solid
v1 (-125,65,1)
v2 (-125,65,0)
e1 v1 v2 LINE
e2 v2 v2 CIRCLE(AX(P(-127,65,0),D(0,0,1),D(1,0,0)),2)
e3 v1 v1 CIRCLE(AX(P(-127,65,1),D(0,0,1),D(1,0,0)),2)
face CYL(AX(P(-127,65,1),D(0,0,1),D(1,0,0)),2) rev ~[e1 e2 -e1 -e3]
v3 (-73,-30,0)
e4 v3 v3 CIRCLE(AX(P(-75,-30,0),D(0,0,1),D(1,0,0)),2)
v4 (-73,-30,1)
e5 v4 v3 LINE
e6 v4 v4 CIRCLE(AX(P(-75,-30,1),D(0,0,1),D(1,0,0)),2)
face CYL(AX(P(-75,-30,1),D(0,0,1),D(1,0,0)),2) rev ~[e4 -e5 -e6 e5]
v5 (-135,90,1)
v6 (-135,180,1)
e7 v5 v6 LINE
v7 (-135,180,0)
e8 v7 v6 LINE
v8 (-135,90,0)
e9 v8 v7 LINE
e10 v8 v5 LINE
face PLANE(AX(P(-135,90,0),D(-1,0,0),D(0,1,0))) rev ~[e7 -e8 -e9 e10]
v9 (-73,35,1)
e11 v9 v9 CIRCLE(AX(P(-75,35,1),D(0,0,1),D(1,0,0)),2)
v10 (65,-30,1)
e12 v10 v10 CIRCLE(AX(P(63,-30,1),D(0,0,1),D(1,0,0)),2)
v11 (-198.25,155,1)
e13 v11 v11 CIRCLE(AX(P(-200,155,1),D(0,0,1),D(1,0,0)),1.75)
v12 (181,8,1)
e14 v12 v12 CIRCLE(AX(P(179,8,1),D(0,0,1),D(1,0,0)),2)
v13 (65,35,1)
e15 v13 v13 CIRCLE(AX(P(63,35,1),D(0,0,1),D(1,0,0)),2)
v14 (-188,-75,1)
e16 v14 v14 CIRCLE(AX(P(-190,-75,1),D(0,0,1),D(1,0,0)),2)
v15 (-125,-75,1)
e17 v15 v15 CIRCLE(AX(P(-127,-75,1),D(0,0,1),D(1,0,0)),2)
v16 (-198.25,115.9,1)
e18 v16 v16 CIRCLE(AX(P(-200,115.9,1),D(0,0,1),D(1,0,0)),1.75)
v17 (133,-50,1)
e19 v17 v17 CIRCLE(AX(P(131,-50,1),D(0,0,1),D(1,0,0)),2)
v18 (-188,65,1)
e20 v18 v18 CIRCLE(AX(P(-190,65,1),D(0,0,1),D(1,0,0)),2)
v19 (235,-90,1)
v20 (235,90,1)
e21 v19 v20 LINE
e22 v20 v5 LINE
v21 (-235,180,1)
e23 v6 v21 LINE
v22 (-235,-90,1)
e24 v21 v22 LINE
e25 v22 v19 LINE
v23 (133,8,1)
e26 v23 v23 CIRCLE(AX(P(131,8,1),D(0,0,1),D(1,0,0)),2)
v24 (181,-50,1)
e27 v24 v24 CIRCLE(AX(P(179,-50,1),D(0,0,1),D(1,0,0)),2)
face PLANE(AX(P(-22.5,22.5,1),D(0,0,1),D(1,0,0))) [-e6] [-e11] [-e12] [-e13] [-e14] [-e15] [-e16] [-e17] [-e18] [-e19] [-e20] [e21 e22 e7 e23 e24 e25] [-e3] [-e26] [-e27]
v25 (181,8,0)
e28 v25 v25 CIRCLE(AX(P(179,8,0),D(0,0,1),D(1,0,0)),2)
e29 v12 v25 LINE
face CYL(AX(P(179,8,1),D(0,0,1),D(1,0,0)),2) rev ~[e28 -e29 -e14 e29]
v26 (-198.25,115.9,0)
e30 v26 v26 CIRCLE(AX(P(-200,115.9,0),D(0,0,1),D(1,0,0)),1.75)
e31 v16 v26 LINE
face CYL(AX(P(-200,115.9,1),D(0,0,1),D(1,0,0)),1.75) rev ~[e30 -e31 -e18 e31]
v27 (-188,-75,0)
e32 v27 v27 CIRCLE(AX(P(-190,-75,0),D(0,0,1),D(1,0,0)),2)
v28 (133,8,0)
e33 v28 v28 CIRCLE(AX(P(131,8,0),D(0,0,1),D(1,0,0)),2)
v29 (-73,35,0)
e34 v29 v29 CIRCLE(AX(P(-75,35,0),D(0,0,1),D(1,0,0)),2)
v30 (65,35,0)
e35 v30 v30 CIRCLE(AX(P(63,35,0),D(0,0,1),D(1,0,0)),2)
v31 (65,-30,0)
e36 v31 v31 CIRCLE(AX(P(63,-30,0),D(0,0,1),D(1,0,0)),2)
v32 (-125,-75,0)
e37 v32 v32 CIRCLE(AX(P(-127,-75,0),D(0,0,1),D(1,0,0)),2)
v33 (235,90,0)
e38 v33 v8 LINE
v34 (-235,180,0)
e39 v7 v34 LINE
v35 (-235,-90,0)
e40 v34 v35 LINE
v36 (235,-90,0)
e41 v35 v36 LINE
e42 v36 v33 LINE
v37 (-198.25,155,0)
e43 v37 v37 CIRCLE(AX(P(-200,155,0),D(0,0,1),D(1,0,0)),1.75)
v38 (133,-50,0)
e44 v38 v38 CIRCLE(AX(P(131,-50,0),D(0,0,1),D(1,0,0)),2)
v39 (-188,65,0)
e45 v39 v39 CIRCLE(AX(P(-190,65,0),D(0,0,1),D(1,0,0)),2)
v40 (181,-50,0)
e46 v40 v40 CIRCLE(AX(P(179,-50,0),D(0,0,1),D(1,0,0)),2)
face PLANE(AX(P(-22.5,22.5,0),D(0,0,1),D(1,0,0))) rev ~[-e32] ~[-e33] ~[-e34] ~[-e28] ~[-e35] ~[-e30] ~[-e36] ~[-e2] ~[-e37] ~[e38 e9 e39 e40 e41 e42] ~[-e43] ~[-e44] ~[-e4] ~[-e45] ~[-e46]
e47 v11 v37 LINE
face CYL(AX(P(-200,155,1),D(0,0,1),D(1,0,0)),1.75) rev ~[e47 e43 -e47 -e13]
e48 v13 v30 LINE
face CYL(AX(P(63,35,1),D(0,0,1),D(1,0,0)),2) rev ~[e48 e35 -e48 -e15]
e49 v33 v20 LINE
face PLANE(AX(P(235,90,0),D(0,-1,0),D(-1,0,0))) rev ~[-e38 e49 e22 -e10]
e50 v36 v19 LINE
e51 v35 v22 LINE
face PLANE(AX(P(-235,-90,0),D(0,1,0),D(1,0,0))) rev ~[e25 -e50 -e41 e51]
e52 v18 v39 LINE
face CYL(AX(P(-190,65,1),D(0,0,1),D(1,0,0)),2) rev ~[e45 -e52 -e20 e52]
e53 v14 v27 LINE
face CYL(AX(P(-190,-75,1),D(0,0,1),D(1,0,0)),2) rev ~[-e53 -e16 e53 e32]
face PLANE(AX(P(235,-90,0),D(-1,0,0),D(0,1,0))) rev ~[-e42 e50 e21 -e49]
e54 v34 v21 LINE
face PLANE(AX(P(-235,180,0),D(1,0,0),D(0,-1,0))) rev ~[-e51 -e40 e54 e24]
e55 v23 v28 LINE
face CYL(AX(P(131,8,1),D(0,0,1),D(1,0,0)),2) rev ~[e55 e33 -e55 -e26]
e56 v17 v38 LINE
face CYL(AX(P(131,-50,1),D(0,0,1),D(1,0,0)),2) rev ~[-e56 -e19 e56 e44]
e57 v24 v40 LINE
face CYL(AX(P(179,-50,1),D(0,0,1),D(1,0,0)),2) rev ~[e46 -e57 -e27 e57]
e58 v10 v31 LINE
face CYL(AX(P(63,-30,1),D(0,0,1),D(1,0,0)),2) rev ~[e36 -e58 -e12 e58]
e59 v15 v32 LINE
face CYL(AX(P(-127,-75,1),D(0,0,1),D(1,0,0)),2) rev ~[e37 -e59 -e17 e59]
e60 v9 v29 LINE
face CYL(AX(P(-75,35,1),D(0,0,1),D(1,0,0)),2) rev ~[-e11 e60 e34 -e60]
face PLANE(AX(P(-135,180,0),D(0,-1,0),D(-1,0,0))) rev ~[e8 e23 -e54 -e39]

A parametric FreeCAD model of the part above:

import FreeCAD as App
import Part
import Sketcher

V = App.Vector
Q = App.Units.Quantity

doc = App.newDocument("Part")
params = doc.addObject("Spreadsheet::Sheet", "Params")
for row, (alias, value) in enumerate([
    ("sketch1_width", "470 mm"),
    ("sketch1_width2", "370 mm"),
    ("sketch1_height", "180 mm"),
    ("sketch1_height2", "90 mm"),
    ("pad1_length", "1 mm"),
    ("sketch2_diameter", "4 mm"),
    ("sketch3_diameter", "4 mm"),
    ("pocket2_length", "25 mm"),
    ("sketch4_diameter", "4 mm"),
    ("pocket3_length", "25 mm"),
    ("sketch5_diameter", "3.5 mm"),
    ("pocket4_length", "25 mm"),
], start=1):
    params.set(f"A{row}", alias)
    params.set(f"B{row}", "=" + value)
    params.setAlias(f"B{row}", alias)

body = doc.addObject("PartDesign::Body", "Body")

sketch1 = body.newObject("Sketcher::SketchObject", "Sketch")
sketch1.AttachmentSupport = (doc.getObject("XY_Plane"), [""])
sketch1.MapMode = "FlatFace"
sketch1.addGeometry([
    Part.LineSegment(V(-235, -90, 0), V(235, -90, 0)),
    Part.LineSegment(V(235, -90, 0), V(235, 90, 0)),
    Part.LineSegment(V(235, 90, 0), V(-135, 90, 0)),
    Part.LineSegment(V(-135, 90, 0), V(-135, 180, 0)),
    Part.LineSegment(V(-135, 180, 0), V(-235, 180, 0)),
    Part.LineSegment(V(-235, 180, 0), V(-235, -90, 0)),
], False)
sketch1.addConstraint([
    Sketcher.Constraint("Coincident", 0, 2, 1, 1),
    Sketcher.Constraint("Coincident", 1, 2, 2, 1),
    Sketcher.Constraint("Coincident", 2, 2, 3, 1),
    Sketcher.Constraint("Coincident", 3, 2, 4, 1),
    Sketcher.Constraint("Coincident", 4, 2, 5, 1),
    Sketcher.Constraint("Coincident", 5, 2, 0, 1),
    Sketcher.Constraint("Horizontal", 0),
    Sketcher.Constraint("Vertical", 1),
    Sketcher.Constraint("Horizontal", 2),
    Sketcher.Constraint("Vertical", 3),
    Sketcher.Constraint("Horizontal", 4),
    Sketcher.Constraint("Vertical", 5),
    Sketcher.Constraint("Symmetric", 1, 2, 5, 2, -1, 1),
    Sketcher.Constraint("DistanceX", 0, 1, 0, 2, Q("470 mm")),
    Sketcher.Constraint("DistanceX", 2, 2, 2, 1, Q("370 mm")),
    Sketcher.Constraint("DistanceY", 1, 1, 1, 2, Q("180 mm")),
    Sketcher.Constraint("DistanceY", 3, 1, 3, 2, Q("90 mm")),
])
sketch1.setExpression("Constraints[13]", "Params.sketch1_width")
sketch1.setExpression("Constraints[14]", "Params.sketch1_width2")
sketch1.setExpression("Constraints[15]", "Params.sketch1_height")
sketch1.setExpression("Constraints[16]", "Params.sketch1_height2")
pad1 = body.newObject("PartDesign::Pad", "Pad")
pad1.Profile = sketch1
pad1.setExpression("Length", "Params.pad1_length")

sketch2 = body.newObject("Sketcher::SketchObject", "Sketch001")
sketch2.AttachmentSupport = (doc.getObject("XY_Plane"), [""])
sketch2.MapMode = "FlatFace"
sketch2.AttachmentOffset = App.Placement(V(0, 0, 1), App.Rotation())
sketch2.addGeometry([
    Part.Circle(V(-127, 65, 0), V(0, 0, 1), 2),
    Part.Circle(V(-190, 65, 0), V(0, 0, 1), 2),
    Part.Circle(V(-127, -75, 0), V(0, 0, 1), 2),
    Part.Circle(V(-190, -75, 0), V(0, 0, 1), 2),
], False)
sketch2.addConstraint([
    Sketcher.Constraint("Equal", 0, 1),
    Sketcher.Constraint("Equal", 1, 2),
    Sketcher.Constraint("Equal", 2, 3),
    Sketcher.Constraint("Horizontal", 0, 3, 1, 3),
    Sketcher.Constraint("Horizontal", 2, 3, 3, 3),
    Sketcher.Constraint("Vertical", 0, 3, 2, 3),
    Sketcher.Constraint("Vertical", 1, 3, 3, 3),
    Sketcher.Constraint("Diameter", 0, Q("4 mm")),
    Sketcher.Constraint("DistanceX", 0, 3, -1, 1, Q("127 mm")),
    Sketcher.Constraint("DistanceY", -1, 1, 0, 3, Q("65 mm")),
    Sketcher.Constraint("DistanceX", 1, 3, -1, 1, Q("190 mm")),
    Sketcher.Constraint("DistanceY", 2, 3, -1, 1, Q("75 mm")),
])
sketch2.setExpression("Constraints[7]", "Params.sketch2_diameter")
pocket1 = body.newObject("PartDesign::Pocket", "Pocket")
pocket1.Profile = sketch2
pocket1.Type = "ThroughAll"

sketch3 = body.newObject("Sketcher::SketchObject", "Sketch002")
sketch3.AttachmentSupport = (doc.getObject("XY_Plane"), [""])
sketch3.MapMode = "FlatFace"
sketch3.AttachmentOffset = App.Placement(V(0, 0, 1), App.Rotation())
sketch3.addGeometry([
    Part.Circle(V(-75, 35, 0), V(0, 0, 1), 2),
    Part.Circle(V(63, 35, 0), V(0, 0, 1), 2),
    Part.Circle(V(-75, -30, 0), V(0, 0, 1), 2),
    Part.Circle(V(63, -30, 0), V(0, 0, 1), 2),
], False)
sketch3.addConstraint([
    Sketcher.Constraint("Equal", 0, 1),
    Sketcher.Constraint("Equal", 1, 2),
    Sketcher.Constraint("Equal", 2, 3),
    Sketcher.Constraint("Horizontal", 0, 3, 1, 3),
    Sketcher.Constraint("Horizontal", 2, 3, 3, 3),
    Sketcher.Constraint("Vertical", 0, 3, 2, 3),
    Sketcher.Constraint("Vertical", 1, 3, 3, 3),
    Sketcher.Constraint("Diameter", 0, Q("4 mm")),
    Sketcher.Constraint("DistanceX", 0, 3, -1, 1, Q("75 mm")),
    Sketcher.Constraint("DistanceY", -1, 1, 0, 3, Q("35 mm")),
    Sketcher.Constraint("DistanceX", -1, 1, 1, 3, Q("63 mm")),
    Sketcher.Constraint("DistanceY", 2, 3, -1, 1, Q("30 mm")),
])
sketch3.setExpression("Constraints[7]", "Params.sketch3_diameter")
pocket2 = body.newObject("PartDesign::Pocket", "Pocket001")
pocket2.Profile = sketch3
pocket2.setExpression("Length", "Params.pocket2_length")

sketch4 = body.newObject("Sketcher::SketchObject", "Sketch003")
sketch4.AttachmentSupport = (doc.getObject("XY_Plane"), [""])
sketch4.MapMode = "FlatFace"
sketch4.AttachmentOffset = App.Placement(V(0, 0, 1), App.Rotation())
sketch4.addGeometry([
    Part.Circle(V(131, 8, 0), V(0, 0, 1), 2),
    Part.Circle(V(131, -50, 0), V(0, 0, 1), 2),
    Part.Circle(V(179, 8, 0), V(0, 0, 1), 2),
    Part.Circle(V(179, -50, 0), V(0, 0, 1), 2),
], False)
sketch4.addConstraint([
    Sketcher.Constraint("Equal", 0, 1),
    Sketcher.Constraint("Equal", 1, 2),
    Sketcher.Constraint("Equal", 2, 3),
    Sketcher.Constraint("Horizontal", 0, 3, 2, 3),
    Sketcher.Constraint("Horizontal", 1, 3, 3, 3),
    Sketcher.Constraint("Vertical", 0, 3, 1, 3),
    Sketcher.Constraint("Vertical", 2, 3, 3, 3),
    Sketcher.Constraint("Diameter", 0, Q("4 mm")),
    Sketcher.Constraint("DistanceX", -1, 1, 0, 3, Q("131 mm")),
    Sketcher.Constraint("DistanceY", -1, 1, 0, 3, Q("8 mm")),
    Sketcher.Constraint("DistanceY", 1, 3, -1, 1, Q("50 mm")),
    Sketcher.Constraint("DistanceX", -1, 1, 2, 3, Q("179 mm")),
])
sketch4.setExpression("Constraints[7]", "Params.sketch4_diameter")
pocket3 = body.newObject("PartDesign::Pocket", "Pocket002")
pocket3.Profile = sketch4
pocket3.setExpression("Length", "Params.pocket3_length")

sketch5 = body.newObject("Sketcher::SketchObject", "Sketch004")
sketch5.AttachmentSupport = (doc.getObject("XY_Plane"), [""])
sketch5.MapMode = "FlatFace"
sketch5.AttachmentOffset = App.Placement(V(0, 0, 1), App.Rotation())
sketch5.addGeometry([
    Part.Circle(V(-200, 155, 0), V(0, 0, 1), 1.8),
    Part.Circle(V(-200, 115.9, 0), V(0, 0, 1), 1.8),
], False)
sketch5.addConstraint([
    Sketcher.Constraint("Equal", 0, 1),
    Sketcher.Constraint("Vertical", 0, 3, 1, 3),
    Sketcher.Constraint("Diameter", 0, Q("3.5 mm")),
    Sketcher.Constraint("DistanceX", 0, 3, -1, 1, Q("200 mm")),
    Sketcher.Constraint("DistanceY", -1, 1, 0, 3, Q("155 mm")),
    Sketcher.Constraint("DistanceY", -1, 1, 1, 3, Q("115.9 mm")),
])
sketch5.setExpression("Constraints[2]", "Params.sketch5_diameter")
pocket4 = body.newObject("PartDesign::Pocket", "Pocket003")
pocket4.Profile = sketch5
pocket4.setExpression("Length", "Params.pocket4_length")

doc.recompute()
